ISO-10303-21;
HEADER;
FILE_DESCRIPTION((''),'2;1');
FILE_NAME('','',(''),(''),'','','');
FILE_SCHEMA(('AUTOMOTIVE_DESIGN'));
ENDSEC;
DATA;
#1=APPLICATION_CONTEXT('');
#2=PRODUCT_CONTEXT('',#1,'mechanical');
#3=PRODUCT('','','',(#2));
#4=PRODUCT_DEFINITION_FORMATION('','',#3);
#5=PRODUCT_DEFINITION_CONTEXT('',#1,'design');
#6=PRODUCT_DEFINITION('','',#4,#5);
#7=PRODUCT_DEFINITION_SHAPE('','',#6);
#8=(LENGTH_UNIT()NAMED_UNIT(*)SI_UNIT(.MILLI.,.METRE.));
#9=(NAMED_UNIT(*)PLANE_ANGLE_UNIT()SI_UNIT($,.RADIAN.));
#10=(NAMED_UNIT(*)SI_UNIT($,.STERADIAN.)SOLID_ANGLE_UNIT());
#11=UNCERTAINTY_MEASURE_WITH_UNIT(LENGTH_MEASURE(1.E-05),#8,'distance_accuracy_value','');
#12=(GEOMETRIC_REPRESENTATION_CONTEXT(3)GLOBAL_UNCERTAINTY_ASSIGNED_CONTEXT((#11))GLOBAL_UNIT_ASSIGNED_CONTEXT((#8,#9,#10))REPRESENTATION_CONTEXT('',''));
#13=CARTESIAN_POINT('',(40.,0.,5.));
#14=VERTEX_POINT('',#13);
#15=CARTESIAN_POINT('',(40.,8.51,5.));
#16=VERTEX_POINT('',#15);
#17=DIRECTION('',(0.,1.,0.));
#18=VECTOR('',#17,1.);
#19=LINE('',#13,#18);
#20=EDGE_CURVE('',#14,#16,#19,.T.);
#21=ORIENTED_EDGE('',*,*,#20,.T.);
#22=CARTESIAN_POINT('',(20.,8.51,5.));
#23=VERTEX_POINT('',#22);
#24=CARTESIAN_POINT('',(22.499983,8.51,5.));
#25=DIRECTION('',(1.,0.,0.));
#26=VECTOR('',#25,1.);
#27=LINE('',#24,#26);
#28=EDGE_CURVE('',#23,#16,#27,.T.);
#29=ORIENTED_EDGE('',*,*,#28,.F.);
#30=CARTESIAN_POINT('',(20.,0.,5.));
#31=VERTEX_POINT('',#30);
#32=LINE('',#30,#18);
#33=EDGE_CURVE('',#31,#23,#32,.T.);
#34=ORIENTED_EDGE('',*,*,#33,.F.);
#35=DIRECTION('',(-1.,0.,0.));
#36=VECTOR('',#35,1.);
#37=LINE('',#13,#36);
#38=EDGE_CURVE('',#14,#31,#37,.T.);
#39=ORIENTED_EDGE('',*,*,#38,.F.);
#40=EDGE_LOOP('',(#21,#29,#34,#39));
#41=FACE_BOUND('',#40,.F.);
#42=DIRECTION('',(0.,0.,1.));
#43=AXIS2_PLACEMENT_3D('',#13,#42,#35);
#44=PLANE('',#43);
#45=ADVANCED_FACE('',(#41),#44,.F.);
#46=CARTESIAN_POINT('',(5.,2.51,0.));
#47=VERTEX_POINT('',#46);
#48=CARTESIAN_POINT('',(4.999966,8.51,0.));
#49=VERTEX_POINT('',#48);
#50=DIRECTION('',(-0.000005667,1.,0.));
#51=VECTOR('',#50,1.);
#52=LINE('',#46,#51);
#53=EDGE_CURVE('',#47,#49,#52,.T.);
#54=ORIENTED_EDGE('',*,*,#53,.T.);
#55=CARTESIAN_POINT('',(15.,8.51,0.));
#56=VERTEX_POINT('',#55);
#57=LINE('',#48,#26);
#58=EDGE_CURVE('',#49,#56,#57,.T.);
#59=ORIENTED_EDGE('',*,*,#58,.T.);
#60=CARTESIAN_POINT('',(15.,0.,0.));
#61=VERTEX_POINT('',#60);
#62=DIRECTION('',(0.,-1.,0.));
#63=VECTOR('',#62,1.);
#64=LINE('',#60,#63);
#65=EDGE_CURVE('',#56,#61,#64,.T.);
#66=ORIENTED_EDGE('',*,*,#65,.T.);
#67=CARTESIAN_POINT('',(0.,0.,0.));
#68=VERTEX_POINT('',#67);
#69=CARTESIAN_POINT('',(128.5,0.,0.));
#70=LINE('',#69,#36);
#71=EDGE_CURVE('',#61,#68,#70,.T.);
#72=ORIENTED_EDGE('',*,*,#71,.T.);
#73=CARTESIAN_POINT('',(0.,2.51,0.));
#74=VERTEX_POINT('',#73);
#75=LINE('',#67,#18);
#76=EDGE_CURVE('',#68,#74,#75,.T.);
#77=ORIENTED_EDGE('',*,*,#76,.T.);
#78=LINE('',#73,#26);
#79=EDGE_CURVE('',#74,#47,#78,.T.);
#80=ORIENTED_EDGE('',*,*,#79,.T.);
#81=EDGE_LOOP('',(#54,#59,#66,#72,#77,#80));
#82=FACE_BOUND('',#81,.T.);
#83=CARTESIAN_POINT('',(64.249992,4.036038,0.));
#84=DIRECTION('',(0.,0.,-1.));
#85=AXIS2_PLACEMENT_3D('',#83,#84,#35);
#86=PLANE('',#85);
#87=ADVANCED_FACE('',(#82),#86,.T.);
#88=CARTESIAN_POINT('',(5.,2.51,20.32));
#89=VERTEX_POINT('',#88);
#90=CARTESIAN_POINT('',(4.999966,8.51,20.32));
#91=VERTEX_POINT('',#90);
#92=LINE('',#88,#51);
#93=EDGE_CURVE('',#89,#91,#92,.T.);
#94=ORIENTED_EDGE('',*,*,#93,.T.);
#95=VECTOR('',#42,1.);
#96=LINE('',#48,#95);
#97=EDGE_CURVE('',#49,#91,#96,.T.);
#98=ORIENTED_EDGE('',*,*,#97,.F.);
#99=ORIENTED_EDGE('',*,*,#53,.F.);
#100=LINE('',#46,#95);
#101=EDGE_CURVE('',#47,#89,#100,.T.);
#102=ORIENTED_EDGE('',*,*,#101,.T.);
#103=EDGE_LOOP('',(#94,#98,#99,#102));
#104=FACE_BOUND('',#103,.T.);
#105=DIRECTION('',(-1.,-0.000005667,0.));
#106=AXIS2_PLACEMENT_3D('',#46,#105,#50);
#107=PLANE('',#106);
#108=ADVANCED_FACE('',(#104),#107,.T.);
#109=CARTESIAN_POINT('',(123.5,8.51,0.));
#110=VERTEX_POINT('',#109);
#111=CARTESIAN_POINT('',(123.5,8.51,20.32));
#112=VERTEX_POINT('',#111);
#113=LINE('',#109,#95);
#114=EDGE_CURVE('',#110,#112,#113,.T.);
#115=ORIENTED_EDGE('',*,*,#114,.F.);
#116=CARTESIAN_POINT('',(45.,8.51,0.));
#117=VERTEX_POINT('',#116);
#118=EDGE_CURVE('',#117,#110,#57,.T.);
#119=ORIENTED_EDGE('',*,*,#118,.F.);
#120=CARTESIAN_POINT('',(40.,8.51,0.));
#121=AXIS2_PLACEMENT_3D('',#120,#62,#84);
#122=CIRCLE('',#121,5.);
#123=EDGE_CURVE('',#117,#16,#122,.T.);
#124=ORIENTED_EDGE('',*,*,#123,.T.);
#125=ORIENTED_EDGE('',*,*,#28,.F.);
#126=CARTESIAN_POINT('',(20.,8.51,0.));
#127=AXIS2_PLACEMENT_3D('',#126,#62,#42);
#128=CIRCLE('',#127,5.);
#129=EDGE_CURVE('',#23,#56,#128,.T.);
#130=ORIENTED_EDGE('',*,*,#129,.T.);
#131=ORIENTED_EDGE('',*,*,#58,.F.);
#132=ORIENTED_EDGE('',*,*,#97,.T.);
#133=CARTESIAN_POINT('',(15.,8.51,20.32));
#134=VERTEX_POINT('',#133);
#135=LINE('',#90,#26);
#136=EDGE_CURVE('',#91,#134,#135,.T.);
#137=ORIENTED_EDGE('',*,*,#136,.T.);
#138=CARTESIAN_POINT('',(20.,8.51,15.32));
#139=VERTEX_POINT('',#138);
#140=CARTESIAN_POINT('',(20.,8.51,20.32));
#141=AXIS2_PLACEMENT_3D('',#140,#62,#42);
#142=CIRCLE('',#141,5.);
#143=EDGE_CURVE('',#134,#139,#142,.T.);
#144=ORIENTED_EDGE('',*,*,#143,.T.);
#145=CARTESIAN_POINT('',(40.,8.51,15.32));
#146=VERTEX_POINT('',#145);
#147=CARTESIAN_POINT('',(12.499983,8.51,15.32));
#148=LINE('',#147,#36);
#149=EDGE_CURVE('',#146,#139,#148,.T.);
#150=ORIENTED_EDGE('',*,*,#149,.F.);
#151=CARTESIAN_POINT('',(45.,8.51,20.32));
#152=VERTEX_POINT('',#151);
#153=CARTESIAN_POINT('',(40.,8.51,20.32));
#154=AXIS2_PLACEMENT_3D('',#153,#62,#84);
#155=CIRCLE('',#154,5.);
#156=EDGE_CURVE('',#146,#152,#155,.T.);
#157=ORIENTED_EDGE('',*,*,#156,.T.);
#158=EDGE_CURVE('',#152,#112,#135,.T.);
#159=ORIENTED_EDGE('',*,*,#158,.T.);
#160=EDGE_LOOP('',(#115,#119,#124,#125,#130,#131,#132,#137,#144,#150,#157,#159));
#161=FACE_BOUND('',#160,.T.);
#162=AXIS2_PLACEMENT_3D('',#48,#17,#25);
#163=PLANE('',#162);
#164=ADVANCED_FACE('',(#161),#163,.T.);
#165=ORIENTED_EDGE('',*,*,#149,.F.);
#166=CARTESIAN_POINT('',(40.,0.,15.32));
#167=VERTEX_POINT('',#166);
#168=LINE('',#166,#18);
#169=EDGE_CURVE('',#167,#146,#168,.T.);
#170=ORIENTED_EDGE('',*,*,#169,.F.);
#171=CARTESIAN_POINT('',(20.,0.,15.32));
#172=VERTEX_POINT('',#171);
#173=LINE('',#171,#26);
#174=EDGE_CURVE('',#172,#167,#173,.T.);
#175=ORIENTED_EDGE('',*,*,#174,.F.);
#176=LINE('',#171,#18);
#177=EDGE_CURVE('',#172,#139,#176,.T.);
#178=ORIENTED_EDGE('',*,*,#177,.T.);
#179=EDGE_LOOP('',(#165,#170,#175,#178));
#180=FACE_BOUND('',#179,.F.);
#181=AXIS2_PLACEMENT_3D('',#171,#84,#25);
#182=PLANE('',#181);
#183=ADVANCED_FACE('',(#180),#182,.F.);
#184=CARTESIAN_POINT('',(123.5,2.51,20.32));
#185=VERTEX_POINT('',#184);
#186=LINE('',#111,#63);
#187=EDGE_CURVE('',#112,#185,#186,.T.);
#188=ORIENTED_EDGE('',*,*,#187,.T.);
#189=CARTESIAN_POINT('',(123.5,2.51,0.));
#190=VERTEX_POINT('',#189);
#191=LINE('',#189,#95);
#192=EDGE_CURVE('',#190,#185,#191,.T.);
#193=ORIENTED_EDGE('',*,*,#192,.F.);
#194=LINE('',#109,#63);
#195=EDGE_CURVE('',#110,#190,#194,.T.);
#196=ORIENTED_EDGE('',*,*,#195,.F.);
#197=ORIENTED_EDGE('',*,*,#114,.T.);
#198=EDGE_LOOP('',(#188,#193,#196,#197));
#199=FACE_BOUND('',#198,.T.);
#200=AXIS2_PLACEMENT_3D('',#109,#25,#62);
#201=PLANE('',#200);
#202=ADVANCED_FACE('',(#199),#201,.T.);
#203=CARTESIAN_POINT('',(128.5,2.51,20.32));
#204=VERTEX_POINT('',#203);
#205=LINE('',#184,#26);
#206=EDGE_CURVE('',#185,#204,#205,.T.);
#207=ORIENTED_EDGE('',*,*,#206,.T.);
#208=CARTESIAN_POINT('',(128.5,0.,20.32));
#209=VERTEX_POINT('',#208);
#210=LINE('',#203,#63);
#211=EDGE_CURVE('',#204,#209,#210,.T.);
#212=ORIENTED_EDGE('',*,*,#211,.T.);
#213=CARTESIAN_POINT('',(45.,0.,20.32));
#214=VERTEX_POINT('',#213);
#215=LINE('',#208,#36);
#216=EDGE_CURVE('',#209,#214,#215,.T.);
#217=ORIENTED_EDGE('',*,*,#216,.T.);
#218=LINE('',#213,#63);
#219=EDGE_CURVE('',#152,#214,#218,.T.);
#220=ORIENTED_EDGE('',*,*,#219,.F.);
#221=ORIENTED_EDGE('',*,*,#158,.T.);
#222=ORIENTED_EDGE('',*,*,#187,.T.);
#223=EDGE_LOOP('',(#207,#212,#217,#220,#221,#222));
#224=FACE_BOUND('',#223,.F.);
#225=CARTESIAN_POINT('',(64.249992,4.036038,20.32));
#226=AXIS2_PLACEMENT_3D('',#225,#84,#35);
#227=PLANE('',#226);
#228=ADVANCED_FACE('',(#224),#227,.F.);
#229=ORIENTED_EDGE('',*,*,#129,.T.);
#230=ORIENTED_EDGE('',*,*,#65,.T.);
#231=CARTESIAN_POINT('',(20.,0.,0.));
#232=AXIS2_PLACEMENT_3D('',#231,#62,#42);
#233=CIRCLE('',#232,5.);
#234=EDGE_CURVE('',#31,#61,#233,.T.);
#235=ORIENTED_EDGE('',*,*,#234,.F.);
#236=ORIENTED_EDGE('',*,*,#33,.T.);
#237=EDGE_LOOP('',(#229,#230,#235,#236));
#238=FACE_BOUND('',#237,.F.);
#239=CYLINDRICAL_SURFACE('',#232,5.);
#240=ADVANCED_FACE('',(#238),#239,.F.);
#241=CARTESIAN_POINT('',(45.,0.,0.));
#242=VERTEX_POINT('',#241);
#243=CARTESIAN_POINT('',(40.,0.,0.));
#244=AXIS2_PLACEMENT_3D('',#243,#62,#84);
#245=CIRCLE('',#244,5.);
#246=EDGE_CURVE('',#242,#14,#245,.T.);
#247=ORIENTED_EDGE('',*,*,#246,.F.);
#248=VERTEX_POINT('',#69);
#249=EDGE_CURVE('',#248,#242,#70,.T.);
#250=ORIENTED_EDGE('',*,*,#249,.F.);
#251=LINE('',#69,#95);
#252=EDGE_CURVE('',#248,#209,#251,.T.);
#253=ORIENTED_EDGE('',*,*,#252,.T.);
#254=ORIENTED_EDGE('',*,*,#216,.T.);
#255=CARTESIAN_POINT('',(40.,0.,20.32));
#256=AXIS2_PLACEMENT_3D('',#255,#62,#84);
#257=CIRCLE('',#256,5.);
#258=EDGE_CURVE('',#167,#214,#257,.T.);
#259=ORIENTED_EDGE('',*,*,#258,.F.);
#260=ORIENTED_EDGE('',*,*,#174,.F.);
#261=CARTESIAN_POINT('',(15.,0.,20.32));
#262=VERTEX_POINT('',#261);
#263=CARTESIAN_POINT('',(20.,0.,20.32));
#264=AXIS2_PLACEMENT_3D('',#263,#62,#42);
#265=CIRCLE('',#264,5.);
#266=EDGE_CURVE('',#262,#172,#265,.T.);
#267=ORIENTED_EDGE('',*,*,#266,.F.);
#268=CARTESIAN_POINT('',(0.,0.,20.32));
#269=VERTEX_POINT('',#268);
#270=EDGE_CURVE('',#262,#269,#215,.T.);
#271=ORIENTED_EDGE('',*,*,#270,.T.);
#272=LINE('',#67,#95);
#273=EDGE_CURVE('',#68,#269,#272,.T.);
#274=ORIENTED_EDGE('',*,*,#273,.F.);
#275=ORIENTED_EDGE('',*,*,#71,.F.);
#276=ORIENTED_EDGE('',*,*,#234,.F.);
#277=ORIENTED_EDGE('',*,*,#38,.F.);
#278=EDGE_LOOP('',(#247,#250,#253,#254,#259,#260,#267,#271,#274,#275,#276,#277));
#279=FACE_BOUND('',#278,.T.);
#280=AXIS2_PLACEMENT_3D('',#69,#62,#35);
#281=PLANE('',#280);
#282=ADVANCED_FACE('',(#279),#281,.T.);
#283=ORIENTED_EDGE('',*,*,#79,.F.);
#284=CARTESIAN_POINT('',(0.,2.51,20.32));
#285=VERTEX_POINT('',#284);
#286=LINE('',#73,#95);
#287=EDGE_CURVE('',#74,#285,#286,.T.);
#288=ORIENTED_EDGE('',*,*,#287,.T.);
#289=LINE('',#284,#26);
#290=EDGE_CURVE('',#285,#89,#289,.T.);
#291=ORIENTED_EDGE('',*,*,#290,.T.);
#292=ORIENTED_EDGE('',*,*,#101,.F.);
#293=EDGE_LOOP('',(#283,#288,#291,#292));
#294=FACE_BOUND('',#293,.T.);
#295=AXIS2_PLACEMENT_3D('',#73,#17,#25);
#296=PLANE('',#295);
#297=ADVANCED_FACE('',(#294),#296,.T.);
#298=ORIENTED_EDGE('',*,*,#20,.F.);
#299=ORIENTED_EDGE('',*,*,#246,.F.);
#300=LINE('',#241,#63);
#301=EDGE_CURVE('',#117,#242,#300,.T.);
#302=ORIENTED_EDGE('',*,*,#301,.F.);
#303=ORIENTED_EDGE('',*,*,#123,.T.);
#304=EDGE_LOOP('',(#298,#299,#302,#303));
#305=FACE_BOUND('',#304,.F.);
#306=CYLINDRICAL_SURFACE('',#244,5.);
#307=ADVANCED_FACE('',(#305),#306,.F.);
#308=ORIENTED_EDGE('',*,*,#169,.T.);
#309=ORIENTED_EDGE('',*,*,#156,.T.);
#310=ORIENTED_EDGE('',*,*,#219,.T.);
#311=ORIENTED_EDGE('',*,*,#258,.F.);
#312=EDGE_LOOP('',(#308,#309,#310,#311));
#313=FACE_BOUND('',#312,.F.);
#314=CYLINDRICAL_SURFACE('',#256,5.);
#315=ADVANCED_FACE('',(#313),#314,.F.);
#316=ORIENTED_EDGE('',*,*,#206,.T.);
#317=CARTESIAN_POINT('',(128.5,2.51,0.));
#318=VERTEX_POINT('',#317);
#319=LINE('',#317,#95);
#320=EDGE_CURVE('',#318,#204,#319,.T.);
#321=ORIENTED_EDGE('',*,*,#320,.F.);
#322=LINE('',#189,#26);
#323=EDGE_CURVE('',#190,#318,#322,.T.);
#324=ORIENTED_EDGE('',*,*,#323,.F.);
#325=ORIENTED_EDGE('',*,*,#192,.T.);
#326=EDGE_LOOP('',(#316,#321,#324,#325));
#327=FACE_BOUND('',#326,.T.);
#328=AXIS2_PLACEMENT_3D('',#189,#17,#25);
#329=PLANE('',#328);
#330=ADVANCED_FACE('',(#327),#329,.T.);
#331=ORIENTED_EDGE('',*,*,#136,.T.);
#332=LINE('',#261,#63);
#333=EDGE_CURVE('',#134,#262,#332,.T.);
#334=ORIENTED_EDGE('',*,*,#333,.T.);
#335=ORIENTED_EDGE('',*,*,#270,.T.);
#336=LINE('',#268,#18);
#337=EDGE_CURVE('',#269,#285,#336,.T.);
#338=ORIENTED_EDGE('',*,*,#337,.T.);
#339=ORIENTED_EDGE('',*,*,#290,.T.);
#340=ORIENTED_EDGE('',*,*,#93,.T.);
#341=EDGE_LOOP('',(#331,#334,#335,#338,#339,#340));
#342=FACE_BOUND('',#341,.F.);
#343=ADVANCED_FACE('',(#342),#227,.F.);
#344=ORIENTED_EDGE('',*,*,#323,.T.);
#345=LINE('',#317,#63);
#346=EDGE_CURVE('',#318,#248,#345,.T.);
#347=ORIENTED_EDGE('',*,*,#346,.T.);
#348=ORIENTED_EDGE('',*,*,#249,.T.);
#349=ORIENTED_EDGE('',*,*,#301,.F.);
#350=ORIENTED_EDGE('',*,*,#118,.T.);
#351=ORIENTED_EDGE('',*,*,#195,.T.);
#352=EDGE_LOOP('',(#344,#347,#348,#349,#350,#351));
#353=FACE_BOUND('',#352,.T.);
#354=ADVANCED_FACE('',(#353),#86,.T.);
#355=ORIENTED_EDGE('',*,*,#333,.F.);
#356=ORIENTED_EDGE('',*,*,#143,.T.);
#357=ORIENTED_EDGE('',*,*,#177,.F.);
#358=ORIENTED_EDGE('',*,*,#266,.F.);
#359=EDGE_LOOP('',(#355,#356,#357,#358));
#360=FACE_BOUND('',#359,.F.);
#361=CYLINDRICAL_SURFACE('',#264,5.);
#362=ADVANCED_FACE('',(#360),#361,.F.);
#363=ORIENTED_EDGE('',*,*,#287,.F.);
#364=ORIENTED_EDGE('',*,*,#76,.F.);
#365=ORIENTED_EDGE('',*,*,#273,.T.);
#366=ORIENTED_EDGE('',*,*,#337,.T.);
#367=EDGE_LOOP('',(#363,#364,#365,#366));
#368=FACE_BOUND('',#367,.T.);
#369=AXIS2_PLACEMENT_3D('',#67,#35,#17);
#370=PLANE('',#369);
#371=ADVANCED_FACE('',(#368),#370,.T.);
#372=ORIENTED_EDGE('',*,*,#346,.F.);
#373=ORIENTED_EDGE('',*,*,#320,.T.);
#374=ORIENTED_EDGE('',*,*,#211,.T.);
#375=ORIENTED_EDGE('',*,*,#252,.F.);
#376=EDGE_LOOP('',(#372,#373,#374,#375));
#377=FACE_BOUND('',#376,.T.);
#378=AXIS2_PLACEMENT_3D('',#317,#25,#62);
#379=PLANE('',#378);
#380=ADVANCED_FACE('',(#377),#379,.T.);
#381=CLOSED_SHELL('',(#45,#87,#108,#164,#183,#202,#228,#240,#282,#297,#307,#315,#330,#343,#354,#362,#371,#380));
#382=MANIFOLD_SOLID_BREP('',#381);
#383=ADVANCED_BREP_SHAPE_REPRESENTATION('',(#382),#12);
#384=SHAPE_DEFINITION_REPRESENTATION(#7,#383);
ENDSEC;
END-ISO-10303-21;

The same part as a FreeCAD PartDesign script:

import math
import FreeCAD as App
import Part
import Sketcher
from FreeCAD import Vector


def add_polygon(sketch, points):
    """Adds a closed chain of lines whose ends are joined by coincident constraints."""
    first, n = sketch.GeometryCount, len(points)
    for a, b in zip(points, points[1:] + points[:1]):
        sketch.addGeometry(Part.LineSegment(App.Vector(*a, 0), App.Vector(*b, 0)), False)
    for i in range(n):
        sketch.addConstraint(Sketcher.Constraint("Coincident", first + i, 2, first + (i + 1) % n, 1))

doc = App.newDocument("Part")
params = doc.addObject("Spreadsheet::Sheet", "Params")
for row, (alias, value) in enumerate([
    ("sketch1_width", "5 mm"),
    ("sketch1_height", "6 mm"),
    ("sketch1_width2", "128.5 mm"),
    ("sketch1_height2", "2.51 mm"),
    ("pad1_length", "20.32 mm"),
    ("sketch2_radius", "5 mm"),
    ("sketch2_width", "20 mm"),
    ("pocket1_length", "21 mm"),
], start=1):
    params.set(f"A{row}", alias)
    params.set(f"B{row}", "=" + value)
    params.setAlias(f"B{row}", alias)

body = doc.addObject("PartDesign::Body", "Body")

sketch1 = body.newObject("Sketcher::SketchObject", "Sketch")
sketch1.AttachmentSupport = (doc.getObject("XY_Plane"), [""])
sketch1.MapMode = "FlatFace"
add_polygon(sketch1, [(0, 2.51), (0, 0), (128.5, 0), (128.5, 2.51), (123.5, 2.51), (123.5, 8.51), (4.999966, 8.51), (5, 2.51)])
sketch1.addConstraint(Sketcher.Constraint("Vertical", 0))
sketch1.addConstraint(Sketcher.Constraint("Horizontal", 1))
sketch1.addConstraint(Sketcher.Constraint("Vertical", 2))
sketch1.addConstraint(Sketcher.Constraint("Horizontal", 3))
sketch1.addConstraint(Sketcher.Constraint("Vertical", 4))
sketch1.addConstraint(Sketcher.Constraint("Horizontal", 5))
sketch1.addConstraint(Sketcher.Constraint("Horizontal", 7))
sketch1.addConstraint(Sketcher.Constraint("Coincident", 0, 2, -1, 1))
sketch1.addConstraint(Sketcher.Constraint("Horizontal", 3, 2, 6, 2))
sketch1.addConstraint(Sketcher.Constraint("Equal", 3, 7))
sketch1.addConstraint(Sketcher.Constraint("DistanceX", 3, 2, 3, 1, 5.0))
sketch1.addConstraint(Sketcher.Constraint("DistanceY", 4, 1, 4, 2, 6.0))
sketch1.addConstraint(Sketcher.Constraint("DistanceX", 1, 1, 1, 2, 128.5))
sketch1.addConstraint(Sketcher.Constraint("DistanceY", 0, 2, 0, 1, 2.51))
sketch1.addConstraint(Sketcher.Constraint("DistanceX", 5, 2, 5, 1, 118.500034))
sketch1.setExpression("Constraints[18]", "Params.sketch1_width")
sketch1.setExpression("Constraints[19]", "Params.sketch1_height")
sketch1.setExpression("Constraints[20]", "Params.sketch1_width2")
sketch1.setExpression("Constraints[21]", "Params.sketch1_height2")
pad1 = body.newObject("PartDesign::Pad", "Pad")
pad1.Profile = sketch1
pad1.setExpression("Length", "Params.pad1_length")

sketch2 = body.newObject("Sketcher::SketchObject", "Sketch001")
sketch2.AttachmentSupport = (doc.getObject("XZ_Plane"), [""])
sketch2.MapMode = "FlatFace"
sketch2.addGeometry(Part.ArcOfCircle(Part.Circle(Vector(20, 0, 0), Vector(0, 0, 1), 5), math.radians(90), math.radians(270)), False)
sketch2.addGeometry(Part.LineSegment(Vector(20, -5, 0), Vector(40, -5, 0)), False)
sketch2.addGeometry(Part.ArcOfCircle(Part.Circle(Vector(40, 0, 0), Vector(0, 0, 1), 5), math.radians(-90), math.radians(90)), False)
sketch2.addGeometry(Part.LineSegment(Vector(40, 5, 0), Vector(20, 5, 0)), False)
sketch2.addGeometry(Part.ArcOfCircle(Part.Circle(Vector(20, 20.32, 0), Vector(0, 0, 1), 5), math.radians(90), math.radians(270)), False)
sketch2.addGeometry(Part.LineSegment(Vector(20, 15.32, 0), Vector(40, 15.32, 0)), False)
sketch2.addGeometry(Part.ArcOfCircle(Part.Circle(Vector(40, 20.32, 0), Vector(0, 0, 1), 5), math.radians(-90), math.radians(90)), False)
sketch2.addGeometry(Part.LineSegment(Vector(40, 25.32, 0), Vector(20, 25.32, 0)), False)
sketch2.addConstraint(Sketcher.Constraint("Tangent", 0, 2, 1, 1))
sketch2.addConstraint(Sketcher.Constraint("Tangent", 1, 2, 2, 1))
sketch2.addConstraint(Sketcher.Constraint("Tangent", 2, 2, 3, 1))
sketch2.addConstraint(Sketcher.Constraint("Tangent", 3, 2, 0, 1))
sketch2.addConstraint(Sketcher.Constraint("Tangent", 4, 2, 5, 1))
sketch2.addConstraint(Sketcher.Constraint("Tangent", 5, 2, 6, 1))
sketch2.addConstraint(Sketcher.Constraint("Tangent", 6, 2, 7, 1))
sketch2.addConstraint(Sketcher.Constraint("Tangent", 7, 2, 4, 1))
sketch2.addConstraint(Sketcher.Constraint("Horizontal", 1))
sketch2.addConstraint(Sketcher.Constraint("Horizontal", 3))
sketch2.addConstraint(Sketcher.Constraint("Horizontal", 5))
sketch2.addConstraint(Sketcher.Constraint("Horizontal", 7))
sketch2.addConstraint(Sketcher.Constraint("Equal", 2, 4))
sketch2.addConstraint(Sketcher.Constraint("PointOnObject", 0, 3, -1))
sketch2.addConstraint(Sketcher.Constraint("Vertical", 0, 3, 4, 3))
sketch2.addConstraint(Sketcher.Constraint("Vertical", 2, 3, 6, 3))
sketch2.addConstraint(Sketcher.Constraint("Radius", 0, 5.0))
sketch2.addConstraint(Sketcher.Constraint("DistanceX", 1, 1, 1, 2, 20.0))
sketch2.addConstraint(Sketcher.Constraint("DistanceX", -1, 1, 0, 3, 20.0))
sketch2.addConstraint(Sketcher.Constraint("DistanceY", -1, 1, 4, 3, 20.32))
sketch2.setExpression("Constraints[16]", "Params.sketch2_radius")
sketch2.setExpression("Constraints[17]", "Params.sketch2_width")
pocket1 = body.newObject("PartDesign::Pocket", "Pocket")
pocket1.Profile = sketch2
pocket1.setExpression("Length", "Params.pocket1_length")

doc.recompute()
